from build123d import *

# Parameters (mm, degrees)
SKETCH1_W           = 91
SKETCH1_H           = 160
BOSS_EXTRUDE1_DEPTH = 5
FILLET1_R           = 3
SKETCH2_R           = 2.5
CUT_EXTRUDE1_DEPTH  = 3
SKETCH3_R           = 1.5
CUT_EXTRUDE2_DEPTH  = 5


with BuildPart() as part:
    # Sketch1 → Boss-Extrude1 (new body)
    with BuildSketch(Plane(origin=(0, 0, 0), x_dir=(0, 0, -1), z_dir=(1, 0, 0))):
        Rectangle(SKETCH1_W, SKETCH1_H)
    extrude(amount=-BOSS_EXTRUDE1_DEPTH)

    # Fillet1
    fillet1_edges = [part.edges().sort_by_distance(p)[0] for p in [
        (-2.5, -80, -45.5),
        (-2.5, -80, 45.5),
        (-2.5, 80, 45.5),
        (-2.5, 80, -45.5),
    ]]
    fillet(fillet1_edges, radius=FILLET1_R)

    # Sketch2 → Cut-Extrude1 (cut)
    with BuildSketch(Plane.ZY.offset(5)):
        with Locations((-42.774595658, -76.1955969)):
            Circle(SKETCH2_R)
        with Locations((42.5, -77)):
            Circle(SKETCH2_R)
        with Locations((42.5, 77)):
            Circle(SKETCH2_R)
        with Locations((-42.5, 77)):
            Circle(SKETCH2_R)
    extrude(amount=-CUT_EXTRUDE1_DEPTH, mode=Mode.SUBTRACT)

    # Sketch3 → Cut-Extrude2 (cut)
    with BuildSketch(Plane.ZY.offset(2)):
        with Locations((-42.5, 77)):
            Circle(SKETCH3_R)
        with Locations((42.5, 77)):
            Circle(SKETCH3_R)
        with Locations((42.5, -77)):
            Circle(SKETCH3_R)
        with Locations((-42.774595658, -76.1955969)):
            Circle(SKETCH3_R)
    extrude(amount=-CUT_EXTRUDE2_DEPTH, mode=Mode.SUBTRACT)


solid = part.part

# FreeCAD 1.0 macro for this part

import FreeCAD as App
import Part
import Sketcher

V = App.Vector


def edges_at(feature, points):
    """Names of the edges that pass closest to the given points."""
    edges = feature.Shape.Edges
    near = lambda p: min(range(len(edges)), key=lambda i: edges[i].distToShape(Part.Vertex(*p))[0])
    return sorted({f"Edge{near(p) + 1}" for p in points})

doc = App.newDocument("Part")
body = doc.addObject("PartDesign::Body", "Body")

# Sketch on YZ plane
sketch1 = body.newObject("Sketcher::SketchObject", "Sketch")
sketch1.AttachmentSupport = (doc.getObject("YZ_Plane"), [""])
sketch1.MapMode = "FlatFace"
sketch1.addGeometry([
    Part.LineSegment(V(80, 45.5, 0), V(-80, 45.5, 0)),
    Part.LineSegment(V(-80, 45.5, 0), V(-80, -45.5, 0)),
    Part.LineSegment(V(-80, -45.5, 0), V(80, -45.5, 0)),
    Part.LineSegment(V(80, -45.5, 0), V(80, 45.5, 0)),
], False)
sketch1.addConstraint([
    Sketcher.Constraint("Coincident", 0, 2, 1, 1),
    Sketcher.Constraint("Coincident", 1, 2, 2, 1),
    Sketcher.Constraint("Coincident", 2, 2, 3, 1),
    Sketcher.Constraint("Coincident", 3, 2, 0, 1),
    Sketcher.Constraint("Horizontal", 0),
    Sketcher.Constraint("Vertical", 1),
    Sketcher.Constraint("Horizontal", 2),
    Sketcher.Constraint("Vertical", 3),
    Sketcher.Constraint("Symmetric", 0, 2, 2, 2, -1, 1),
    Sketcher.Constraint("DistanceX", 0, 2, 0, 1, 160.0),
    Sketcher.Constraint("DistanceY", 1, 2, 1, 1, 91.0),
])
pad1 = body.newObject("PartDesign::Pad", "Pad")
pad1.Profile = sketch1
pad1.Length = 5
pad1.Reversed = True
doc.recompute()

fillet = body.newObject("PartDesign::Fillet", "Fillet")
fillet.Base = (pad1, edges_at(pad1, [
    (-2.5, -80, -45.5),
    (-2.5, -80, 45.5),
    (-2.5, 80, 45.5),
    (-2.5, 80, -45.5),
]))
fillet.Radius = 3

# Sketch on YZ plane
sketch2 = body.newObject("Sketcher::SketchObject", "Sketch001")
sketch2.AttachmentSupport = (doc.getObject("YZ_Plane"), [""])
sketch2.MapMode = "FlatFace"
sketch2.AttachmentOffset = App.Placement(V(0, 0, -5), App.Rotation())
sketch2.addGeometry([
    Part.Circle(V(-76.195597, -42.774596, 0), V(0, 0, 1), 2.5),
    Part.Circle(V(-77, 42.5, 0), V(0, 0, 1), 2.5),
    Part.Circle(V(77, 42.5, 0), V(0, 0, 1), 2.5),
    Part.Circle(V(77, -42.5, 0), V(0, 0, 1), 2.5),
], False)
sketch2.addConstraint([
    Sketcher.Constraint("Equal", 0, 1),
    Sketcher.Constraint("Equal", 1, 2),
    Sketcher.Constraint("Equal", 2, 3),
    Sketcher.Constraint("Symmetric", 1, 3, 3, 3, -1, 1),
    Sketcher.Constraint("Symmetric", 1, 3, 2, 3, -2),
    Sketcher.Constraint("Diameter", 0, 5.0),
    Sketcher.Constraint("DistanceX", 1, 3, -1, 1, 77.0),
    Sketcher.Constraint("DistanceY", 3, 3, 2, 3, 85.0),
    Sketcher.Constraint("DistanceX", 0, 3, -1, 1, 76.195597),
    Sketcher.Constraint("DistanceY", 0, 3, -1, 1, 42.774596),
])
pocket1 = body.newObject("PartDesign::Pocket", "Pocket")
pocket1.Profile = sketch2
pocket1.Length = 3
pocket1.Reversed = True

# Sketch on YZ plane
sketch3 = body.newObject("Sketcher::SketchObject", "Sketch002")
sketch3.AttachmentSupport = (doc.getObject("YZ_Plane"), [""])
sketch3.MapMode = "FlatFace"
sketch3.AttachmentOffset = App.Placement(V(0, 0, -2), App.Rotation())
sketch3.addGeometry([
    Part.Circle(V(77, -42.5, 0), V(0, 0, 1), 1.5),
    Part.Circle(V(77, 42.5, 0), V(0, 0, 1), 1.5),
    Part.Circle(V(-77, 42.5, 0), V(0, 0, 1), 1.5),
    Part.Circle(V(-76.195597, -42.774596, 0), V(0, 0, 1), 1.5),
], False)
sketch3.addConstraint([
    Sketcher.Constraint("Equal", 0, 1),
    Sketcher.Constraint("Equal", 1, 2),
    Sketcher.Constraint("Equal", 2, 3),
    Sketcher.Constraint("Symmetric", 0, 3, 2, 3, -1, 1),
    Sketcher.Constraint("Symmetric", 1, 3, 2, 3, -2),
    Sketcher.Constraint("Diameter", 0, 3.0),
    Sketcher.Constraint("DistanceX", -1, 1, 0, 3, 77.0),
    Sketcher.Constraint("DistanceY", 0, 3, 1, 3, 85.0),
    Sketcher.Constraint("DistanceX", 3, 3, -1, 1, 76.195597),
    Sketcher.Constraint("DistanceY", 3, 3, -1, 1, 42.774596),
])
pocket2 = body.newObject("PartDesign::Pocket", "Pocket001")
pocket2.Profile = sketch3
pocket2.Length = 5
pocket2.Reversed = True

doc.recompute()
